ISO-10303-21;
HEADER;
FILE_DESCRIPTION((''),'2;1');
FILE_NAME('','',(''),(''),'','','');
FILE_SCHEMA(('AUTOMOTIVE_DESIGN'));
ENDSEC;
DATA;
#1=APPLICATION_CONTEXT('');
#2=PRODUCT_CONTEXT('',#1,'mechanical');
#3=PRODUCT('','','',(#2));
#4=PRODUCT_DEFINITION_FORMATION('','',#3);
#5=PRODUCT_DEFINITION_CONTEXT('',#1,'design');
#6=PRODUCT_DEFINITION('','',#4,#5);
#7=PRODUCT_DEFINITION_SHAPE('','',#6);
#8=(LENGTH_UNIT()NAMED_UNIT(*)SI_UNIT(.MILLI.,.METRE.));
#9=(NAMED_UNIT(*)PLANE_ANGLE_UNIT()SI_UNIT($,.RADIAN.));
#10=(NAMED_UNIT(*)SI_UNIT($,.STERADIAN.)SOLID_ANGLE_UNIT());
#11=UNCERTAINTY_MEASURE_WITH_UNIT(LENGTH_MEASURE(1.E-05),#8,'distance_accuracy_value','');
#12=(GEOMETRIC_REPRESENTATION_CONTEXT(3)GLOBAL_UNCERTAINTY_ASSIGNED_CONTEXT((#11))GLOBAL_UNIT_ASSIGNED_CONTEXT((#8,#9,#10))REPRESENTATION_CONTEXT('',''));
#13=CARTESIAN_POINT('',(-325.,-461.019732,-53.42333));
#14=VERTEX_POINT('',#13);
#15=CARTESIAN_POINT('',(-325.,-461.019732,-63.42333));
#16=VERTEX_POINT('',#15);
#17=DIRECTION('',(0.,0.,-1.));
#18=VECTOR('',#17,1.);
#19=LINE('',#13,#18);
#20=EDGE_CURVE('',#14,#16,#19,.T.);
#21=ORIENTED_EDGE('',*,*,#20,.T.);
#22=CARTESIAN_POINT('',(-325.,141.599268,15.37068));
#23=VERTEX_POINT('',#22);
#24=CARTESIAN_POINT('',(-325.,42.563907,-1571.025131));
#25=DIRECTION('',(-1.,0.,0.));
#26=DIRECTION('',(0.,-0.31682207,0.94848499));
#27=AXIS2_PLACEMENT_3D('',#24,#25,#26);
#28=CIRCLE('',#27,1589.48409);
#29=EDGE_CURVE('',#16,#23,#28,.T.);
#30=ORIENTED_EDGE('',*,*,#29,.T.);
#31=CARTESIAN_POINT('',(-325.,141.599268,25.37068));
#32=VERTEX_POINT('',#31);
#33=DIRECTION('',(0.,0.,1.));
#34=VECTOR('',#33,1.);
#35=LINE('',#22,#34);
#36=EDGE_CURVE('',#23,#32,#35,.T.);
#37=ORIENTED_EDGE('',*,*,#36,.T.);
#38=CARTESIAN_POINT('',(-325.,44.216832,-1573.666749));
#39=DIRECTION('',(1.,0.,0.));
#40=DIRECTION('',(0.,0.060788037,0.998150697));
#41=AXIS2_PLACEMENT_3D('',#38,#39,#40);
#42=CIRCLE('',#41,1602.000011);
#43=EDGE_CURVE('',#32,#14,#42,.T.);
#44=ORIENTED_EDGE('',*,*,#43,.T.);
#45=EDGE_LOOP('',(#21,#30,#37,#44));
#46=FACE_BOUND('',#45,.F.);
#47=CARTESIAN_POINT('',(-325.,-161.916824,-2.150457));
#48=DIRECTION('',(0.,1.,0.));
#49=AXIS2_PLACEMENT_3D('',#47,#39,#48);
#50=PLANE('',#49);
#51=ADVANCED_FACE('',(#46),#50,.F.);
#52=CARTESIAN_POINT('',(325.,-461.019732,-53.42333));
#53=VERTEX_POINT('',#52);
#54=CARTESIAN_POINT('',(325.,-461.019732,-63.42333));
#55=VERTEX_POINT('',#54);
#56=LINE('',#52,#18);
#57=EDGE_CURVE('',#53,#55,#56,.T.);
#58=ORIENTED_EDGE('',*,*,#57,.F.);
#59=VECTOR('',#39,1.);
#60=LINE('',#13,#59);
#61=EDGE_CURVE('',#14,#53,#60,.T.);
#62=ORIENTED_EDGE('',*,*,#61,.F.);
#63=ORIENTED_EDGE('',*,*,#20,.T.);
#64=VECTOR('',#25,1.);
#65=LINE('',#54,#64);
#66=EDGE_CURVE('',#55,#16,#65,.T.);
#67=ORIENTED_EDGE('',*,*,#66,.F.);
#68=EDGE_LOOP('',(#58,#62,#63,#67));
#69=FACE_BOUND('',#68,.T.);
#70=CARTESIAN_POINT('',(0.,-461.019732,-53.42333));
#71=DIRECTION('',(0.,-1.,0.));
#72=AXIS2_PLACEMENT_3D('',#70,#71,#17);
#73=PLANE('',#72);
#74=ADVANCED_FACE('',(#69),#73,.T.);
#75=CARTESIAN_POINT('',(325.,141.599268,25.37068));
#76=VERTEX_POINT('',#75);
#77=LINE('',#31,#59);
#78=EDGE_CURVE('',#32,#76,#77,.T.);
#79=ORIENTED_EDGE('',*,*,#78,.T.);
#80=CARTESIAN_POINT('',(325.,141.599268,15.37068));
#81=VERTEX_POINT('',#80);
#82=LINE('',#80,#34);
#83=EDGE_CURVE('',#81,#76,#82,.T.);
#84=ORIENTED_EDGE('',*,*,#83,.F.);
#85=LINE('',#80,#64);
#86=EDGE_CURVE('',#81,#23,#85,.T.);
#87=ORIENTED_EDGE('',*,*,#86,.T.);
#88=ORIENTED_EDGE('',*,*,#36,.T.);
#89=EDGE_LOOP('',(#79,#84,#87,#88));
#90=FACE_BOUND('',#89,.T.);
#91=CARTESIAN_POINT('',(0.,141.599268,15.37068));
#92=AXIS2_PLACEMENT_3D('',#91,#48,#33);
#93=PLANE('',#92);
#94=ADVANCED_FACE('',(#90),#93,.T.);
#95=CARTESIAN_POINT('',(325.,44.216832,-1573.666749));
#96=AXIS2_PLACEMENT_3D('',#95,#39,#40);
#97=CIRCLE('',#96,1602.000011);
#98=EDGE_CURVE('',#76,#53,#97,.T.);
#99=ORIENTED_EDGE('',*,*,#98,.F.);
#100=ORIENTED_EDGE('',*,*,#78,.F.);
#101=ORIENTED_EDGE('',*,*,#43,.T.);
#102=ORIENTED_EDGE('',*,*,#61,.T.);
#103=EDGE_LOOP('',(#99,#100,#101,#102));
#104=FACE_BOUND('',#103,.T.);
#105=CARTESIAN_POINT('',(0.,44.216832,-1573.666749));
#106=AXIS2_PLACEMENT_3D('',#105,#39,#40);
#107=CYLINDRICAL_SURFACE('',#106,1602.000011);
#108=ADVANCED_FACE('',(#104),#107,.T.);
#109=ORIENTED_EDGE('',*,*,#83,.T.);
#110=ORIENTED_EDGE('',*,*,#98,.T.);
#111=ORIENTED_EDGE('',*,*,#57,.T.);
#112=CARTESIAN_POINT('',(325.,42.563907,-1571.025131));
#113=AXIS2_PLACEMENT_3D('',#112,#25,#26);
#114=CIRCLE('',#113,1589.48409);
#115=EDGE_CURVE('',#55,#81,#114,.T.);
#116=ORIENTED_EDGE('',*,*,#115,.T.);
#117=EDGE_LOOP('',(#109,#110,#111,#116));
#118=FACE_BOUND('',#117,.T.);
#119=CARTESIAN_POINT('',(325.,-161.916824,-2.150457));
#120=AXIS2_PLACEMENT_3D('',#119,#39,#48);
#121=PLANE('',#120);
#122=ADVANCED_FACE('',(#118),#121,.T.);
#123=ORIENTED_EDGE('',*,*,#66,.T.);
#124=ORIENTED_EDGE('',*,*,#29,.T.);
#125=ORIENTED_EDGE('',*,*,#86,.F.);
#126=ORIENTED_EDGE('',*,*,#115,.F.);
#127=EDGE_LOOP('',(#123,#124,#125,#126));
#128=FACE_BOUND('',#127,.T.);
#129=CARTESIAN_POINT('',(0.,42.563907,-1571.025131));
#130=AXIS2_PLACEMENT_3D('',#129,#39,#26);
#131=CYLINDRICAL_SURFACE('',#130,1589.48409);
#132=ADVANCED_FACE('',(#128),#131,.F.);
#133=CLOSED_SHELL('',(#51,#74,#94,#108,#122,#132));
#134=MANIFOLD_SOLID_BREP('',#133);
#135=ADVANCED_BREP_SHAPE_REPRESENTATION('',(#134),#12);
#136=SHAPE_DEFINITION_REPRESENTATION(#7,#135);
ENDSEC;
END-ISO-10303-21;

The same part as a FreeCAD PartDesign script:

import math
import FreeCAD as App
import Part
import Sketcher

V = App.Vector
Q = App.Units.Quantity

doc = App.newDocument("Part")
params = doc.addObject("Spreadsheet::Sheet", "Params")
for row, (alias, value) in enumerate([
    ("sketch1_height", "10 mm"),
    ("pad1_length", "650 mm"),
], start=1):
    params.set(f"A{row}", alias)
    params.set(f"B{row}", "=" + value)
    params.setAlias(f"B{row}", alias)

body = doc.addObject("PartDesign::Body", "Body")

sketch1 = doc.addObject("Sketcher::SketchObject", "Sketch")
body.addObject(sketch1)
sketch1.AttachmentSupport = (doc.YZ_Plane, [""])
sketch1.MapMode = "FlatFace"
sketch1.addGeometry([
    Part.LineSegment(V(142, 15, 0), V(142, 25, 0)),
    Part.ArcOfCircle(Part.Circle(V(44, -1574, 0), V(0, 0, 1), 1602), math.radians(87), math.radians(108)),
    Part.LineSegment(V(-461, -53, 0), V(-461, -63, 0)),
    Part.ArcOfCircle(Part.Circle(V(43, -1571, 0), V(0, 0, 1), 1589), math.radians(86), math.radians(108)),
], False)
sketch1.addConstraint([
    Sketcher.Constraint("Coincident", 0, 2, 1, 1),
    Sketcher.Constraint("Coincident", 1, 2, 2, 1),
    Sketcher.Constraint("Coincident", 2, 2, 3, 2),
    Sketcher.Constraint("Coincident", 3, 1, 0, 1),
    Sketcher.Constraint("Vertical", 0),
    Sketcher.Constraint("Vertical", 2),
    Sketcher.Constraint("Equal", 0, 2),
    Sketcher.Constraint("DistanceY", 0, 1, 0, 2, Q("10 mm")),
    Sketcher.Constraint("Radius", 1, Q("1602.000011 mm")),
    Sketcher.Constraint("Radius", 3, Q("1589.48409 mm")),
    Sketcher.Constraint("DistanceX", 2, 2, 0, 2, Q("602.619 mm")),
    Sketcher.Constraint("DistanceY", 3, 3, 2, 2, Q("1507.601801 mm")),
    Sketcher.Constraint("DistanceX", -1, 1, 1, 3, Q("44.216832 mm")),
    Sketcher.Constraint("DistanceY", 1, 3, -1, 1, Q("1573.666749 mm")),
])
sketch1.setExpression("Constraints[7]", "Params.sketch1_height")
pad1 = doc.addObject("PartDesign::Pad", "Pad")
body.addObject(pad1)
pad1.Profile = sketch1
pad1.setExpression("Length", "Params.pad1_length")
pad1.Midplane = True

doc.recompute()
